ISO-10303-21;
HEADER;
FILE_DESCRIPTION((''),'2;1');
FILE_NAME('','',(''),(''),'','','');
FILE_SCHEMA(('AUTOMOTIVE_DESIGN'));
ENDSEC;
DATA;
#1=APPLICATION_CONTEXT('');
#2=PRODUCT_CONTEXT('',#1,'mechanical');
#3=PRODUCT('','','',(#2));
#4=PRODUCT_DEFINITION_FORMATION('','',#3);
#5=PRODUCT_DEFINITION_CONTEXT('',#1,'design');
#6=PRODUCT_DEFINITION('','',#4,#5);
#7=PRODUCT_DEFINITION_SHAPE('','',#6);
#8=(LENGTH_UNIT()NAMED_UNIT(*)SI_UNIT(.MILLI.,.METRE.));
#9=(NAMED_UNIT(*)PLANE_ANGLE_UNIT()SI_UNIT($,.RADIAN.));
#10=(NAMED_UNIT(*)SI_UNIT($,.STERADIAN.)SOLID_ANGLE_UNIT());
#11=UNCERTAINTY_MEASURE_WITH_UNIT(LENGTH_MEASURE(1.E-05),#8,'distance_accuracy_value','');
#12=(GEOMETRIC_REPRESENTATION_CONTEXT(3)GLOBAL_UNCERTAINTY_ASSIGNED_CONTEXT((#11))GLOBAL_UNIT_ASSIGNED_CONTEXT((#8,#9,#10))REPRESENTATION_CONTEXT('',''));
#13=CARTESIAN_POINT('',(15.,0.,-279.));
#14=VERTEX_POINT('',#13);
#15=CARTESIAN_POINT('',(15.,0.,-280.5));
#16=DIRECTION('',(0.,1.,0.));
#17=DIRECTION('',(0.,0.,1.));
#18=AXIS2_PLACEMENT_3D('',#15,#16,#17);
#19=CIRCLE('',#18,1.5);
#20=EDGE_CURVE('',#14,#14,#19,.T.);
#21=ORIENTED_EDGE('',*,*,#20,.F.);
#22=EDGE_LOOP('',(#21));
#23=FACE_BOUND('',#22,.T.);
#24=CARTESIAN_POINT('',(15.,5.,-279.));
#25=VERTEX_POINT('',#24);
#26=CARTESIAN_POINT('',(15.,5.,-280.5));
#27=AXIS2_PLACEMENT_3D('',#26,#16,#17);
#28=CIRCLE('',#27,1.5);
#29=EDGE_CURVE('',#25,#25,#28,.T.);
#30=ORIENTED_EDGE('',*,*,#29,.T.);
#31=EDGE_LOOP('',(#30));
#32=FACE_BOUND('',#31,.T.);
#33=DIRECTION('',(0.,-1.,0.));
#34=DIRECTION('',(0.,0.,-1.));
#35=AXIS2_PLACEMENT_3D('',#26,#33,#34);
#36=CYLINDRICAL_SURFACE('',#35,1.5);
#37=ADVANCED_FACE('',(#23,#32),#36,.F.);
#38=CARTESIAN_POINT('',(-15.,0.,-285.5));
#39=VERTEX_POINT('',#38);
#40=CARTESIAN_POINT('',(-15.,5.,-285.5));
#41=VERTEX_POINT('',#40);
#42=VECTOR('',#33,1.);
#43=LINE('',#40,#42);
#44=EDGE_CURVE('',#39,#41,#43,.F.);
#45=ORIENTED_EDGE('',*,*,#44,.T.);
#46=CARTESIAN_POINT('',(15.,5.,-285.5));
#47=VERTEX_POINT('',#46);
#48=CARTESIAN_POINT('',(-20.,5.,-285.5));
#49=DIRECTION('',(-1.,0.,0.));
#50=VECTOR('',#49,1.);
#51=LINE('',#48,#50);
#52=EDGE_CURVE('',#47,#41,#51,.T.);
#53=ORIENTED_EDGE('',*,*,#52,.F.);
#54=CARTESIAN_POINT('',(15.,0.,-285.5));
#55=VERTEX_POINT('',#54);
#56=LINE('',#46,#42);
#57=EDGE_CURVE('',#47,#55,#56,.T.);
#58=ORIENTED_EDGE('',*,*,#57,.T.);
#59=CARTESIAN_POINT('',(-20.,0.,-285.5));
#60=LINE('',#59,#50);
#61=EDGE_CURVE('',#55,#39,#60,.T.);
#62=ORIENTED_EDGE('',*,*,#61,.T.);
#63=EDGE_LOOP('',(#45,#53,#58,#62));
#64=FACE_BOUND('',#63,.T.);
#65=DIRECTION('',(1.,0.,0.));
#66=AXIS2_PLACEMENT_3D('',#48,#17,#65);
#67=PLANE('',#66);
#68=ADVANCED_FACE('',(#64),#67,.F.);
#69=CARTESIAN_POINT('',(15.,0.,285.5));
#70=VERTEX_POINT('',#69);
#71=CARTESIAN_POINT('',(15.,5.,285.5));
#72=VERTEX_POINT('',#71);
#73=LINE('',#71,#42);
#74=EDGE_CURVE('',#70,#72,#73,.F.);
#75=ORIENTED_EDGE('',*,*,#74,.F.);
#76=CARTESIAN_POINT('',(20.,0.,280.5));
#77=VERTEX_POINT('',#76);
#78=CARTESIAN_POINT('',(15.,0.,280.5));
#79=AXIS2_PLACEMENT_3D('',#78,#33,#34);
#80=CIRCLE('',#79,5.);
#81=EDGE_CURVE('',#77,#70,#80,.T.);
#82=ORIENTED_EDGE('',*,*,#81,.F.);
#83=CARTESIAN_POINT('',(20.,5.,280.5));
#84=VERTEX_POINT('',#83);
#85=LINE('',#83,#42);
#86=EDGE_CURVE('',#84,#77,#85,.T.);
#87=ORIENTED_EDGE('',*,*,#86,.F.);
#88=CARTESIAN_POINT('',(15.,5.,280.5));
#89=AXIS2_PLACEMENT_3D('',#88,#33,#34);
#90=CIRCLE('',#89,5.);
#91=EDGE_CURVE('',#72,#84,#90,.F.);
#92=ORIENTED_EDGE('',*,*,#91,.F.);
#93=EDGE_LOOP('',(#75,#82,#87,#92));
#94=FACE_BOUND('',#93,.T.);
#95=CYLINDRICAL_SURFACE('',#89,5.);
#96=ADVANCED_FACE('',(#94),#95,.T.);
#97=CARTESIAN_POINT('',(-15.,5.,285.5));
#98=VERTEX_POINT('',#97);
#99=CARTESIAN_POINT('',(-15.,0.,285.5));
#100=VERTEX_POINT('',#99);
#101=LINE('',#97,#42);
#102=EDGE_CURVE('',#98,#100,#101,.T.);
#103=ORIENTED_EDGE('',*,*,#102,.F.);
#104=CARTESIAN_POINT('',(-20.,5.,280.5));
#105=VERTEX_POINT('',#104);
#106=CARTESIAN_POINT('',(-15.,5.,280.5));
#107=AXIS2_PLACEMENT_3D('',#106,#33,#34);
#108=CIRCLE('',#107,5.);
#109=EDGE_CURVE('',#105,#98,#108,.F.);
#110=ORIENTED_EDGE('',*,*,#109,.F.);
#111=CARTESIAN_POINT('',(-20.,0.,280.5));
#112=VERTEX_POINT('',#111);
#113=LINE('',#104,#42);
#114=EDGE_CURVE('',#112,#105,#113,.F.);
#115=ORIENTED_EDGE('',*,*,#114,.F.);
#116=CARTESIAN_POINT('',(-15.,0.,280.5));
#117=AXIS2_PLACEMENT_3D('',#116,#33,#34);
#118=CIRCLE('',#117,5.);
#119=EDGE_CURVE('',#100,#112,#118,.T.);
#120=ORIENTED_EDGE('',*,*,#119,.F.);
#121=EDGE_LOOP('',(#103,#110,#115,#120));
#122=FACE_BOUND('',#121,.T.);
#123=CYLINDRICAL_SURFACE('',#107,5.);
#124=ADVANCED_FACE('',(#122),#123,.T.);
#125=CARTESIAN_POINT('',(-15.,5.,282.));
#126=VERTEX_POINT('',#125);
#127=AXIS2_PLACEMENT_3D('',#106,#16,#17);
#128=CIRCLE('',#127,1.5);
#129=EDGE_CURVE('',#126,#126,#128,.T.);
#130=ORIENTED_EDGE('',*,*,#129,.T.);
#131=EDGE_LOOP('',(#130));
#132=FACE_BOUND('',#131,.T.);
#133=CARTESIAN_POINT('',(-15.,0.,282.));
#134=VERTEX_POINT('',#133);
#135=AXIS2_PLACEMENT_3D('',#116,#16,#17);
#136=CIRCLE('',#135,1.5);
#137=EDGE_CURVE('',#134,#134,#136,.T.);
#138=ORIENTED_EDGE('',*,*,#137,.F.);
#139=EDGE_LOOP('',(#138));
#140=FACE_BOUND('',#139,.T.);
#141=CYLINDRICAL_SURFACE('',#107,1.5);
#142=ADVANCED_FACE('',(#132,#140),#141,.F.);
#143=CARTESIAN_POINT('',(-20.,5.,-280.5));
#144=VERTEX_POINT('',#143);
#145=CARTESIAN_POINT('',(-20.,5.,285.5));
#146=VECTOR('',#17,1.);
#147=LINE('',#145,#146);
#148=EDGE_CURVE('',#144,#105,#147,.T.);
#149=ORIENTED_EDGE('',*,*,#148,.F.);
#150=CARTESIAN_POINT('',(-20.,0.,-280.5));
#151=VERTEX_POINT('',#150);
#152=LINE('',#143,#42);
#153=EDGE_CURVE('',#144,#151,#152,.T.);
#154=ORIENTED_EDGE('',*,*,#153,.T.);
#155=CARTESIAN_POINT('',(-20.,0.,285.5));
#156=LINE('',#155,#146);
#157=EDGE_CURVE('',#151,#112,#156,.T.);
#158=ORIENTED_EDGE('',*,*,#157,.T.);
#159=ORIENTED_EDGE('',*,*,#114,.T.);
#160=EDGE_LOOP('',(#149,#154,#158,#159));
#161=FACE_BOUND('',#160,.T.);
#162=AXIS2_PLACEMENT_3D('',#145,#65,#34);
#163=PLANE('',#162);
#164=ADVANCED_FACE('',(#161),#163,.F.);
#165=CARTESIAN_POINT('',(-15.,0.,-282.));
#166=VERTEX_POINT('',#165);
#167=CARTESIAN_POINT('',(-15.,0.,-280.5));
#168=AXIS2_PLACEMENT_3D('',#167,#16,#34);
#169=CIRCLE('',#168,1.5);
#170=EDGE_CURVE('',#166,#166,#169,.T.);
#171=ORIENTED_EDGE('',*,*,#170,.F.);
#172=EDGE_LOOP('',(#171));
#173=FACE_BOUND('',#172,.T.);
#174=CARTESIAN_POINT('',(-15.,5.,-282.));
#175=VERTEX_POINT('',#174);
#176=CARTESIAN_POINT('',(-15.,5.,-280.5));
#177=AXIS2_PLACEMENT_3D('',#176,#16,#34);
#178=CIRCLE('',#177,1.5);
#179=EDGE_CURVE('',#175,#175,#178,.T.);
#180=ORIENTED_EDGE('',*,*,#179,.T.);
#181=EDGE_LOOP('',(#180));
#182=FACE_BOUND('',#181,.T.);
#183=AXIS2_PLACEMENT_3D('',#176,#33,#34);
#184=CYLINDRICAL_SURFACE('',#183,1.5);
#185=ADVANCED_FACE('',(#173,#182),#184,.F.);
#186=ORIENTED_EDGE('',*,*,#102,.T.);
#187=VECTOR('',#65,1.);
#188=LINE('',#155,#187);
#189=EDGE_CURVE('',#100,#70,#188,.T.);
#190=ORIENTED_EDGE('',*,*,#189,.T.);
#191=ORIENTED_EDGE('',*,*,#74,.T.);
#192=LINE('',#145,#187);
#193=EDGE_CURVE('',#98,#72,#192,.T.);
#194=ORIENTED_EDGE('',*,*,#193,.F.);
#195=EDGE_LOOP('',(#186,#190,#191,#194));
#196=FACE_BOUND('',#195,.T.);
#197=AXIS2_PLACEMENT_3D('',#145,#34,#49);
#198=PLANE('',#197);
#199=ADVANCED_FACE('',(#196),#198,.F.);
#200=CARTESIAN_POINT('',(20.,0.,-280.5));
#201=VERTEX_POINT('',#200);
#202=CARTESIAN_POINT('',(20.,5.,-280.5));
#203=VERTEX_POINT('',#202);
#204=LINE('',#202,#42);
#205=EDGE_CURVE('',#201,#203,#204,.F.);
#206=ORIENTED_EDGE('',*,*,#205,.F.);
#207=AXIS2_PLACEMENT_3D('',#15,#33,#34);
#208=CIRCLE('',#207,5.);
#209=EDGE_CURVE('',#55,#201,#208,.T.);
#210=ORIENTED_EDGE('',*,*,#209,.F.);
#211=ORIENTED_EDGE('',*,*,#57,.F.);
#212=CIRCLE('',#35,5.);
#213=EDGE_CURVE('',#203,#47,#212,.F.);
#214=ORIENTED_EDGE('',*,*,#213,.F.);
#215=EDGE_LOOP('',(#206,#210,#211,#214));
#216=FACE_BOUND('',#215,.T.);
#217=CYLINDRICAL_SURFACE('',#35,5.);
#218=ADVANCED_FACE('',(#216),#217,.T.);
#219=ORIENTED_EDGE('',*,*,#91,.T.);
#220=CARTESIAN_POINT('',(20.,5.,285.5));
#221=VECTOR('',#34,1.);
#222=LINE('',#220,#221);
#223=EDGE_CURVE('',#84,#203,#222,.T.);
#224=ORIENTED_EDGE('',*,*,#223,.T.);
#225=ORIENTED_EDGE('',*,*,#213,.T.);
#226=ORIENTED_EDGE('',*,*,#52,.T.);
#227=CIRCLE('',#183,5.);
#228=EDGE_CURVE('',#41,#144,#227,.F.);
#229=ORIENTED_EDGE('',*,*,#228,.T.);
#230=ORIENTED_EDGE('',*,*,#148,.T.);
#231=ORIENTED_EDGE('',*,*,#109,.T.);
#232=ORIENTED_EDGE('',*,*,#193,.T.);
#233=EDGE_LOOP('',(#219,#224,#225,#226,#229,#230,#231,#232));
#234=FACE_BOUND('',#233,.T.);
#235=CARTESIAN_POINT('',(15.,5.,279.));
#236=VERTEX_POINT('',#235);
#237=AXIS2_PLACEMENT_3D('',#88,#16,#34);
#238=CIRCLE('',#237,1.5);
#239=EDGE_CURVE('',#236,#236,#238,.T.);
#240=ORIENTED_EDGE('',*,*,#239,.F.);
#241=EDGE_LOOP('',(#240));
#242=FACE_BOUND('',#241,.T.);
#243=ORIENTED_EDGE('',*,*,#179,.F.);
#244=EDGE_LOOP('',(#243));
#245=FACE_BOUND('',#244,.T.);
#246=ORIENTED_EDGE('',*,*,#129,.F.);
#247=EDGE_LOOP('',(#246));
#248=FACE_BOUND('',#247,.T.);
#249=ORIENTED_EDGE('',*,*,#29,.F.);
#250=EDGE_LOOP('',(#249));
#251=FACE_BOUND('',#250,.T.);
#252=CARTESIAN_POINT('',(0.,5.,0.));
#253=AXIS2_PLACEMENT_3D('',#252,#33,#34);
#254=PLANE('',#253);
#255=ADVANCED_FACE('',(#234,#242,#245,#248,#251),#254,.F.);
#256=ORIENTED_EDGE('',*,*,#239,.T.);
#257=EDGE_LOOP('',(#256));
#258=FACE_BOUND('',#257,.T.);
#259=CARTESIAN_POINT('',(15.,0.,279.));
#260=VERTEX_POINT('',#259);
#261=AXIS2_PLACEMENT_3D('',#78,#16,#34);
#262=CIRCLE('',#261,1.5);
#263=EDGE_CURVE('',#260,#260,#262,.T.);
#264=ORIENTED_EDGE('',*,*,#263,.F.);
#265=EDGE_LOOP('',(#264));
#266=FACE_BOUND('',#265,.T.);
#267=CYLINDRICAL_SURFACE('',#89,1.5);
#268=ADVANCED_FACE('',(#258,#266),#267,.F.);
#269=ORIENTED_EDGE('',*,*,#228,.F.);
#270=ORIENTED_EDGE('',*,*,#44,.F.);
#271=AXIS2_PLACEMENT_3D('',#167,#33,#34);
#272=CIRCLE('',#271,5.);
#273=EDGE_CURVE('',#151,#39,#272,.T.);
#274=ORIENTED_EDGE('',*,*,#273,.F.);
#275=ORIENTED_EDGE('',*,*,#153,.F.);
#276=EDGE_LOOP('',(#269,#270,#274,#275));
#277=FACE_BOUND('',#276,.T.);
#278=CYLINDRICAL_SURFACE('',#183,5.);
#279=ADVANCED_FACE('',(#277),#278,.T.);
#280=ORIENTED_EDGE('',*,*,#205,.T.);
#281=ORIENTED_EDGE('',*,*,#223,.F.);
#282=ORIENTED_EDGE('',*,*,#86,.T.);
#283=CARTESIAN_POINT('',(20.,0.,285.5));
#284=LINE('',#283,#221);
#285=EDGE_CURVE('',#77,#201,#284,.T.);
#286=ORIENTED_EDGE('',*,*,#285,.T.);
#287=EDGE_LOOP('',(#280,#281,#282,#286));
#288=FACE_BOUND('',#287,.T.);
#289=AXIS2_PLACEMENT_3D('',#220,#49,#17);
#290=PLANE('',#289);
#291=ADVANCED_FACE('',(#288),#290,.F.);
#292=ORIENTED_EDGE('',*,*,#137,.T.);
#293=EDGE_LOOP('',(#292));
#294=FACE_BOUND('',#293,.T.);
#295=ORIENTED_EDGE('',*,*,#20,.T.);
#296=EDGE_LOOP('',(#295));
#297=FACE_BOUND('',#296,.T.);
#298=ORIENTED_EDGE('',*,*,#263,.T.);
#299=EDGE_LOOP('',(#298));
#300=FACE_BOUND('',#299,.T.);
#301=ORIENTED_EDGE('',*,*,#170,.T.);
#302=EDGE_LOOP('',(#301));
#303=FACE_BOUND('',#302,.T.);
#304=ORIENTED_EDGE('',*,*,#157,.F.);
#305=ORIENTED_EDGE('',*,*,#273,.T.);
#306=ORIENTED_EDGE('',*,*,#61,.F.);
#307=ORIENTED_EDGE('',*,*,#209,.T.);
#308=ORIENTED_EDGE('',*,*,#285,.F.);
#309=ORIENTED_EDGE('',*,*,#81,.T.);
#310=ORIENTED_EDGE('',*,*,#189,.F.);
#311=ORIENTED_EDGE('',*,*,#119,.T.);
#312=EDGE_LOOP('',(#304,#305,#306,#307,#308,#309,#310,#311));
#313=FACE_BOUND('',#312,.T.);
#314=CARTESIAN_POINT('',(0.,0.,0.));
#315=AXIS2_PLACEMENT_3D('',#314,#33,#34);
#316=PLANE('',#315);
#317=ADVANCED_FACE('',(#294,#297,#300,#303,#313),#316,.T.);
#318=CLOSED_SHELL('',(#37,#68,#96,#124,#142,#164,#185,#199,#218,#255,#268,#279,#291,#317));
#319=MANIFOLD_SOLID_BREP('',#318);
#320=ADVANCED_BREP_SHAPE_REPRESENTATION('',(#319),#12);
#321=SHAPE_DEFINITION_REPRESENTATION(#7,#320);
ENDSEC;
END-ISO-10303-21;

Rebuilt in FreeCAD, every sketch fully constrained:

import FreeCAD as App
import Part
import Sketcher

V = App.Vector
Q = App.Units.Quantity


def edges_at(feature, points):
    """Names of the edges that pass closest to the given points."""
    edges = feature.Shape.Edges
    near = lambda p: min(range(len(edges)), key=lambda i: edges[i].distToShape(Part.Vertex(*p))[0])
    return sorted({f"Edge{near(p) + 1}" for p in points})


def add_polygon(sketch, points):
    """Adds a closed chain of lines whose ends are joined by coincident constraints."""
    first, n = sketch.GeometryCount, len(points)
    for a, b in zip(points, points[1:] + points[:1]):
        sketch.addGeometry(Part.LineSegment(App.Vector(*a, 0), App.Vector(*b, 0)), False)
    for i in range(n):
        sketch.addConstraint(Sketcher.Constraint("Coincident", first + i, 2, first + (i + 1) % n, 1))

doc = App.newDocument("Part")
body = doc.addObject("PartDesign::Body", "Body")

sketch1 = doc.addObject("Sketcher::SketchObject", "Sketch")
body.addObject(sketch1)
sketch1.AttachmentSupport = (doc.XZ_Plane, [""])
sketch1.MapMode = "FlatFace"
add_polygon(sketch1, [(-20, -285.5), (-20, 285.5), (20, 285.5), (20, -285.5)])
sketch1.addGeometry(Part.Circle(V(-15, 280.5, 0), V(0, 0, 1), 1.5), False)
sketch1.addGeometry(Part.Circle(V(15, 280.5, 0), V(0, 0, 1), 1.5), False)
sketch1.addGeometry(Part.Circle(V(-15, -280.5, 0), V(0, 0, 1), 1.5), False)
sketch1.addGeometry(Part.Circle(V(15, -280.5, 0), V(0, 0, 1), 1.5), False)
sketch1.addConstraint(Sketcher.Constraint("Vertical", 0))
sketch1.addConstraint(Sketcher.Constraint("Horizontal", 1))
sketch1.addConstraint(Sketcher.Constraint("Vertical", 2))
sketch1.addConstraint(Sketcher.Constraint("Horizontal", 3))
sketch1.addConstraint(Sketcher.Constraint("Equal", 4, 5))
sketch1.addConstraint(Sketcher.Constraint("Equal", 5, 6))
sketch1.addConstraint(Sketcher.Constraint("Equal", 6, 7))
sketch1.addConstraint(Sketcher.Constraint("Symmetric", 5, 3, 6, 3, -1, 1))
sketch1.addConstraint(Sketcher.Constraint("Symmetric", 4, 3, 7, 3, -1, 1))
sketch1.addConstraint(Sketcher.Constraint("Symmetric", 0, 2, 2, 2, -1, 1))
sketch1.addConstraint(Sketcher.Constraint("Symmetric", 4, 3, 5, 3, -2))
sketch1.addConstraint(Sketcher.Constraint("Diameter", 4, Q("3 mm")))
sketch1.addConstraint(Sketcher.Constraint("DistanceX", 1, 1, 1, 2, Q("40 mm")))
sketch1.addConstraint(Sketcher.Constraint("DistanceY", 0, 1, 0, 2, Q("571 mm")))
sketch1.addConstraint(Sketcher.Constraint("DistanceX", 4, 3, -1, 1, Q("15 mm")))
sketch1.addConstraint(Sketcher.Constraint("DistanceY", 6, 3, 4, 3, Q("561 mm")))
pad1 = doc.addObject("PartDesign::Pad", "Pad")
body.addObject(pad1)
pad1.Profile = sketch1
pad1.Length = 5
pad1.Reversed = True
doc.recompute()

fillet = doc.addObject("PartDesign::Fillet", "Fillet")
body.addObject(fillet)
fillet.Base = (pad1, edges_at(pad1, [
    (20, 2.5, 285.5),
    (-20, 2.5, 285.5),
    (-20, 2.5, -285.5),
    (20, 2.5, -285.5),
]))
fillet.Radius = 5

doc.recompute()
